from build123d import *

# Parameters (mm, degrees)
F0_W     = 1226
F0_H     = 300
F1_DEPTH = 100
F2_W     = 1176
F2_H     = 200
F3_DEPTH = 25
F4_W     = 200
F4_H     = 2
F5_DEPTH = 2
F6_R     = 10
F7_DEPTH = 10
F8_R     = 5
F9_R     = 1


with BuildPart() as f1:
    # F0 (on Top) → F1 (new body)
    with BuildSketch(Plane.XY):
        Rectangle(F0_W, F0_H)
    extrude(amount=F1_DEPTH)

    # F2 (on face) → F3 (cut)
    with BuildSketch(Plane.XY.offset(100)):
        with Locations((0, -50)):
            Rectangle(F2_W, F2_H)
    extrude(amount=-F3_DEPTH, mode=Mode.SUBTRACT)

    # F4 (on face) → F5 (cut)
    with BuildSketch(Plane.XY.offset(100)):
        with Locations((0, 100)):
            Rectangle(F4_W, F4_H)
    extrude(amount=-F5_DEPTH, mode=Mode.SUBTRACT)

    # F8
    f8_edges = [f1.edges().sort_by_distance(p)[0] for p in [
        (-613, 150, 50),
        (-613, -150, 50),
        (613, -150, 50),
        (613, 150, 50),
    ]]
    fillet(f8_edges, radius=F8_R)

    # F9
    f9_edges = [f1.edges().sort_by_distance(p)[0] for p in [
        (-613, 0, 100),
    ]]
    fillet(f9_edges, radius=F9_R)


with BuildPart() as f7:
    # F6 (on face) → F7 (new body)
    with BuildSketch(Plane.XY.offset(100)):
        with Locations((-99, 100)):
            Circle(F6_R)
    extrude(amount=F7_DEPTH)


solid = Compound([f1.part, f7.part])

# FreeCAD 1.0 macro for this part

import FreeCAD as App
import Part
import Sketcher


def edges_at(feature, points):
    """Names of the edges that pass closest to the given points."""
    edges = feature.Shape.Edges
    near = lambda p: min(range(len(edges)), key=lambda i: edges[i].distToShape(Part.Vertex(*p))[0])
    return sorted({f"Edge{near(p) + 1}" for p in points})


def add_polygon(sketch, points):
    """Adds a closed chain of lines whose ends are joined by coincident constraints."""
    first, n = sketch.GeometryCount, len(points)
    for a, b in zip(points, points[1:] + points[:1]):
        sketch.addGeometry(Part.LineSegment(App.Vector(*a, 0), App.Vector(*b, 0)), False)
    for i in range(n):
        sketch.addConstraint(Sketcher.Constraint("Coincident", first + i, 2, first + (i + 1) % n, 1))

doc = App.newDocument("Part")
body = doc.addObject("PartDesign::Body", "Body")

sketch1 = doc.addObject("Sketcher::SketchObject", "Sketch")
body.addObject(sketch1)
sketch1.AttachmentSupport = (doc.XY_Plane, [""])
sketch1.MapMode = "FlatFace"
add_polygon(sketch1, [(-613, 150), (-613, -150), (613, -150), (613, 150)])
sketch1.addConstraint([
    Sketcher.Constraint("Vertical", 0),
    Sketcher.Constraint("Horizontal", 1),
    Sketcher.Constraint("Vertical", 2),
    Sketcher.Constraint("Horizontal", 3),
    Sketcher.Constraint("Symmetric", 0, 2, 2, 2, -1, 1),
    Sketcher.Constraint("DistanceX", 1, 1, 1, 2, 1226.0),
    Sketcher.Constraint("DistanceY", 0, 2, 0, 1, 300.0),
])
pad1 = doc.addObject("PartDesign::Pad", "Pad")
body.addObject(pad1)
pad1.Profile = sketch1
pad1.Length = 100

sketch2 = doc.addObject("Sketcher::SketchObject", "Sketch001")
body.addObject(sketch2)
sketch2.AttachmentSupport = (doc.XY_Plane, [""])
sketch2.MapMode = "FlatFace"
sketch2.AttachmentOffset = App.Placement(App.Vector(0, 0, 100), App.Rotation())
add_polygon(sketch2, [(-588, 50), (-588, -150), (588, -150), (588, 50)])
sketch2.addConstraint([
    Sketcher.Constraint("Vertical", 0),
    Sketcher.Constraint("Horizontal", 1),
    Sketcher.Constraint("Vertical", 2),
    Sketcher.Constraint("Horizontal", 3),
    Sketcher.Constraint("DistanceX", 1, 1, 1, 2, 1176.0),
    Sketcher.Constraint("DistanceY", 0, 2, 0, 1, 200.0),
    Sketcher.Constraint("DistanceX", 0, 2, -1, 1, 588.0),
    Sketcher.Constraint("DistanceY", 0, 2, -1, 1, 150.0),
])
pocket1 = doc.addObject("PartDesign::Pocket", "Pocket")
body.addObject(pocket1)
pocket1.Profile = sketch2
pocket1.Length = 25

sketch3 = doc.addObject("Sketcher::SketchObject", "Sketch002")
body.addObject(sketch3)
sketch3.AttachmentSupport = (doc.XY_Plane, [""])
sketch3.MapMode = "FlatFace"
sketch3.AttachmentOffset = App.Placement(App.Vector(0, 0, 100), App.Rotation())
add_polygon(sketch3, [(-100, 101), (-100, 99), (100, 99), (100, 101)])
sketch3.addConstraint([
    Sketcher.Constraint("Vertical", 0),
    Sketcher.Constraint("Horizontal", 1),
    Sketcher.Constraint("Vertical", 2),
    Sketcher.Constraint("Horizontal", 3),
    Sketcher.Constraint("DistanceX", 1, 1, 1, 2, 200.0),
    Sketcher.Constraint("DistanceY", 0, 2, 0, 1, 2.0),
    Sketcher.Constraint("DistanceX", 0, 2, -1, 1, 100.0),
    Sketcher.Constraint("DistanceY", -1, 1, 0, 2, 99.0),
])
pocket2 = doc.addObject("PartDesign::Pocket", "Pocket001")
body.addObject(pocket2)
pocket2.Profile = sketch3
pocket2.Length = 2
doc.recompute()

fillet = doc.addObject("PartDesign::Fillet", "Fillet")
body.addObject(fillet)
fillet.Base = (pocket2, edges_at(pocket2, [
    (-613, 150, 50),
    (-613, -150, 50),
    (613, -150, 50),
    (613, 150, 50),
]))
fillet.Radius = 5
doc.recompute()

fillet2 = doc.addObject("PartDesign::Fillet", "Fillet001")
body.addObject(fillet2)
fillet2.Base = (fillet, edges_at(fillet, [(-613, 0, 100)]))
fillet2.Radius = 1
body2 = doc.addObject("PartDesign::Body", "Body001")

sketch4 = doc.addObject("Sketcher::SketchObject", "Sketch003")
body2.addObject(sketch4)
sketch4.AttachmentSupport = (doc.getObject("XY_Plane001"), [""])
sketch4.MapMode = "FlatFace"
sketch4.AttachmentOffset = App.Placement(App.Vector(0, 0, 100), App.Rotation())
sketch4.addGeometry(Part.Circle(App.Vector(-99, 100, 0), App.Vector(0, 0, 1), 10), False)
sketch4.addConstraint([
    Sketcher.Constraint("Diameter", 0, 20.0),
    Sketcher.Constraint("DistanceX", 0, 3, -1, 1, 99.0),
    Sketcher.Constraint("DistanceY", -1, 1, 0, 3, 100.0),
])
pad2 = doc.addObject("PartDesign::Pad", "Pad001")
body2.addObject(pad2)
pad2.Profile = sketch4
pad2.Length = 10

doc.recompute()
